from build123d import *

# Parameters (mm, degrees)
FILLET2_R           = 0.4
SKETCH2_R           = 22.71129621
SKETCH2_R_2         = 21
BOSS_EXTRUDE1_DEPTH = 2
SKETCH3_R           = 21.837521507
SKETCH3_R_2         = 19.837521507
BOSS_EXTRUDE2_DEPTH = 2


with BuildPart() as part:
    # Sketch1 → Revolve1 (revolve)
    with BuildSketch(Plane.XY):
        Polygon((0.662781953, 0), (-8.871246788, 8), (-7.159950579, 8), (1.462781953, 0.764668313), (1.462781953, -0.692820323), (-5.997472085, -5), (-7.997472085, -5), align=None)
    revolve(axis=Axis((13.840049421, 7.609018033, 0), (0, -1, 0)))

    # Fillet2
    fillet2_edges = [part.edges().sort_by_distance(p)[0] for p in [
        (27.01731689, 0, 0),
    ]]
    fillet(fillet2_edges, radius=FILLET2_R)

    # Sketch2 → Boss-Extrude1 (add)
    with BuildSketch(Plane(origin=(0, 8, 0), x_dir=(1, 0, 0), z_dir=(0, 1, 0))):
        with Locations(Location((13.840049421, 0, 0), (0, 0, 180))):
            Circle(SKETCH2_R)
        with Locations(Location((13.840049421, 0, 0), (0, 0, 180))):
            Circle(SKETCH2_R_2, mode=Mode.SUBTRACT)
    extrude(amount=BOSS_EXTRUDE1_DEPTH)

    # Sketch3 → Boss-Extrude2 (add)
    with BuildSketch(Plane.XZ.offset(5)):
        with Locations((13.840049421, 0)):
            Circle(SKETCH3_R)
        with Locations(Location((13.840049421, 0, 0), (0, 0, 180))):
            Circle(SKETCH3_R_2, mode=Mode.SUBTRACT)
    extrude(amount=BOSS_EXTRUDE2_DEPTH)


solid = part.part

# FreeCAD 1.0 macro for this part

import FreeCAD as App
import Part
import Sketcher
from FreeCAD import Vector
Q = App.Units.Quantity


def edges_at(feature, points):
    """Names of the edges that pass closest to the given points."""
    edges = feature.Shape.Edges
    near = lambda p: min(range(len(edges)), key=lambda i: edges[i].distToShape(Part.Vertex(*p))[0])
    return sorted({f"Edge{near(p) + 1}" for p in points})


def add_polygon(sketch, points):
    """Adds a closed chain of lines whose ends are joined by coincident constraints."""
    first, n = sketch.GeometryCount, len(points)
    for a, b in zip(points, points[1:] + points[:1]):
        sketch.addGeometry(Part.LineSegment(App.Vector(*a, 0), App.Vector(*b, 0)), False)
    for i in range(n):
        sketch.addConstraint(Sketcher.Constraint("Coincident", first + i, 2, first + (i + 1) % n, 1))

doc = App.newDocument("Part")
params = doc.addObject("Spreadsheet::Sheet", "Params")
for row, (alias, value) in enumerate([
    ("sketch1_width", "2 mm"),
    ("sketch1_height", "13 mm"),
    ("sketch1_length", "10 mm"),
    ("revolution_angle", "360 deg"),
    ("fillet_radius", "0.4 mm"),
    ("sketch2_diameter", "42 mm"),
    ("pad1_length", "2 mm"),
    ("pad2_length", "2 mm"),
], start=1):
    params.set(f"A{row}", alias)
    params.set(f"B{row}", "=" + value)
    params.setAlias(f"B{row}", alias)

body = doc.addObject("PartDesign::Body", "Body")

sketch1 = body.newObject("Sketcher::SketchObject", "Sketch")
sketch1.AttachmentSupport = (doc.getObject("XY_Plane"), [""])
sketch1.MapMode = "FlatFace"
add_polygon(sketch1, [(-8.9, 8), (0.7, 0), (-8, -5), (-6, -5), (1.5, -0.7), (1.5, 0.8), (-7.2, 8)])
sketch1.addGeometry(Part.LineSegment(Vector(13.8, 8, 0), Vector(13.8, -5, 0)), True)
sketch1.addConstraint([
    Sketcher.Constraint("Horizontal", 2),
    Sketcher.Constraint("Vertical", 4),
    Sketcher.Constraint("Horizontal", 6),
    Sketcher.Constraint("Vertical", 7),
    Sketcher.Constraint("PointOnObject", 0, 2, -1),
    Sketcher.Constraint("Parallel", 1, 3),
    Sketcher.Constraint("Parallel", 0, 5),
    Sketcher.Constraint("Horizontal", 6, 2, 7, 1),
    Sketcher.Constraint("Horizontal", 2, 2, 7, 2),
    Sketcher.Constraint("DistanceX", 2, 1, 2, 2, Q("2 mm")),
    Sketcher.Constraint("DistanceY", 7, 2, 7, 1, Q("13 mm")),
    Sketcher.Constraint("Angle", 0, Q("-40 deg")),
    Sketcher.Constraint("Angle", 1, Q("-150 deg")),
    Sketcher.Constraint("Distance", 1, Q("10 mm")),
    Sketcher.Constraint("DistanceX", 5, 2, 7, 1, Q("21 mm")),
    Sketcher.Constraint("DistanceX", 0, 2, 3, 2, Q("0.8 mm")),
    Sketcher.Constraint("DistanceY", 4, 1, 4, 2, Q("1.457489 mm")),
    Sketcher.Constraint("DistanceX", -1, 1, 0, 2, Q("0.662782 mm")),
])
sketch1.setExpression("Constraints[16]", "Params.sketch1_width")
sketch1.setExpression("Constraints[17]", "Params.sketch1_height")
sketch1.setExpression("Constraints[20]", "Params.sketch1_length")
revolution = body.newObject("PartDesign::Revolution", "Revolution")
revolution.Profile = sketch1
revolution.ReferenceAxis = (sketch1, ["Axis0"])
revolution.setExpression("Angle", "Params.revolution_angle")
doc.recompute()

fillet = body.newObject("PartDesign::Fillet", "Fillet")
fillet.Base = (revolution, edges_at(revolution, [(27.017, 0, 0)]))
fillet.setExpression("Radius", "Params.fillet_radius")

sketch2 = body.newObject("Sketcher::SketchObject", "Sketch001")
sketch2.AttachmentSupport = (doc.getObject("XZ_Plane"), [""])
sketch2.MapMode = "FlatFace"
sketch2.AttachmentOffset = App.Placement(Vector(0, 0, -8), App.Rotation())
sketch2.addGeometry([
    Part.Circle(Vector(14, 0, 0), Vector(0, 0, 1), 23),
    Part.Circle(Vector(14, 0, 0), Vector(0, 0, 1), 21),
], False)
sketch2.addConstraint([
    Sketcher.Constraint("Coincident", 1, 3, 0, 3),
    Sketcher.Constraint("PointOnObject", 0, 3, -1),
    Sketcher.Constraint("Diameter", 1, Q("42 mm")),
    Sketcher.Constraint("Diameter", 0, Q("45.422592 mm")),
    Sketcher.Constraint("DistanceX", -1, 1, 0, 3, Q("13.840049 mm")),
])
sketch2.setExpression("Constraints[2]", "Params.sketch2_diameter")
pad1 = body.newObject("PartDesign::Pad", "Pad")
pad1.Profile = sketch2
pad1.setExpression("Length", "Params.pad1_length")
pad1.Reversed = True

sketch3 = body.newObject("Sketcher::SketchObject", "Sketch002")
sketch3.AttachmentSupport = (doc.getObject("XZ_Plane"), [""])
sketch3.MapMode = "FlatFace"
sketch3.AttachmentOffset = App.Placement(Vector(0, 0, 5), App.Rotation())
sketch3.addGeometry([
    Part.Circle(Vector(14, 0, 0), Vector(0, 0, 1), 22),
    Part.Circle(Vector(14, 0, 0), Vector(0, 0, 1), 20),
], False)
sketch3.addConstraint([
    Sketcher.Constraint("Coincident", 1, 3, 0, 3),
    Sketcher.Constraint("PointOnObject", 0, 3, -1),
    Sketcher.Constraint("Diameter", 0, Q("43.675043 mm")),
    Sketcher.Constraint("Diameter", 1, Q("39.675043 mm")),
    Sketcher.Constraint("DistanceX", -1, 1, 0, 3, Q("13.840049 mm")),
])
pad2 = body.newObject("PartDesign::Pad", "Pad001")
pad2.Profile = sketch3
pad2.setExpression("Length", "Params.pad2_length")

doc.recompute()
